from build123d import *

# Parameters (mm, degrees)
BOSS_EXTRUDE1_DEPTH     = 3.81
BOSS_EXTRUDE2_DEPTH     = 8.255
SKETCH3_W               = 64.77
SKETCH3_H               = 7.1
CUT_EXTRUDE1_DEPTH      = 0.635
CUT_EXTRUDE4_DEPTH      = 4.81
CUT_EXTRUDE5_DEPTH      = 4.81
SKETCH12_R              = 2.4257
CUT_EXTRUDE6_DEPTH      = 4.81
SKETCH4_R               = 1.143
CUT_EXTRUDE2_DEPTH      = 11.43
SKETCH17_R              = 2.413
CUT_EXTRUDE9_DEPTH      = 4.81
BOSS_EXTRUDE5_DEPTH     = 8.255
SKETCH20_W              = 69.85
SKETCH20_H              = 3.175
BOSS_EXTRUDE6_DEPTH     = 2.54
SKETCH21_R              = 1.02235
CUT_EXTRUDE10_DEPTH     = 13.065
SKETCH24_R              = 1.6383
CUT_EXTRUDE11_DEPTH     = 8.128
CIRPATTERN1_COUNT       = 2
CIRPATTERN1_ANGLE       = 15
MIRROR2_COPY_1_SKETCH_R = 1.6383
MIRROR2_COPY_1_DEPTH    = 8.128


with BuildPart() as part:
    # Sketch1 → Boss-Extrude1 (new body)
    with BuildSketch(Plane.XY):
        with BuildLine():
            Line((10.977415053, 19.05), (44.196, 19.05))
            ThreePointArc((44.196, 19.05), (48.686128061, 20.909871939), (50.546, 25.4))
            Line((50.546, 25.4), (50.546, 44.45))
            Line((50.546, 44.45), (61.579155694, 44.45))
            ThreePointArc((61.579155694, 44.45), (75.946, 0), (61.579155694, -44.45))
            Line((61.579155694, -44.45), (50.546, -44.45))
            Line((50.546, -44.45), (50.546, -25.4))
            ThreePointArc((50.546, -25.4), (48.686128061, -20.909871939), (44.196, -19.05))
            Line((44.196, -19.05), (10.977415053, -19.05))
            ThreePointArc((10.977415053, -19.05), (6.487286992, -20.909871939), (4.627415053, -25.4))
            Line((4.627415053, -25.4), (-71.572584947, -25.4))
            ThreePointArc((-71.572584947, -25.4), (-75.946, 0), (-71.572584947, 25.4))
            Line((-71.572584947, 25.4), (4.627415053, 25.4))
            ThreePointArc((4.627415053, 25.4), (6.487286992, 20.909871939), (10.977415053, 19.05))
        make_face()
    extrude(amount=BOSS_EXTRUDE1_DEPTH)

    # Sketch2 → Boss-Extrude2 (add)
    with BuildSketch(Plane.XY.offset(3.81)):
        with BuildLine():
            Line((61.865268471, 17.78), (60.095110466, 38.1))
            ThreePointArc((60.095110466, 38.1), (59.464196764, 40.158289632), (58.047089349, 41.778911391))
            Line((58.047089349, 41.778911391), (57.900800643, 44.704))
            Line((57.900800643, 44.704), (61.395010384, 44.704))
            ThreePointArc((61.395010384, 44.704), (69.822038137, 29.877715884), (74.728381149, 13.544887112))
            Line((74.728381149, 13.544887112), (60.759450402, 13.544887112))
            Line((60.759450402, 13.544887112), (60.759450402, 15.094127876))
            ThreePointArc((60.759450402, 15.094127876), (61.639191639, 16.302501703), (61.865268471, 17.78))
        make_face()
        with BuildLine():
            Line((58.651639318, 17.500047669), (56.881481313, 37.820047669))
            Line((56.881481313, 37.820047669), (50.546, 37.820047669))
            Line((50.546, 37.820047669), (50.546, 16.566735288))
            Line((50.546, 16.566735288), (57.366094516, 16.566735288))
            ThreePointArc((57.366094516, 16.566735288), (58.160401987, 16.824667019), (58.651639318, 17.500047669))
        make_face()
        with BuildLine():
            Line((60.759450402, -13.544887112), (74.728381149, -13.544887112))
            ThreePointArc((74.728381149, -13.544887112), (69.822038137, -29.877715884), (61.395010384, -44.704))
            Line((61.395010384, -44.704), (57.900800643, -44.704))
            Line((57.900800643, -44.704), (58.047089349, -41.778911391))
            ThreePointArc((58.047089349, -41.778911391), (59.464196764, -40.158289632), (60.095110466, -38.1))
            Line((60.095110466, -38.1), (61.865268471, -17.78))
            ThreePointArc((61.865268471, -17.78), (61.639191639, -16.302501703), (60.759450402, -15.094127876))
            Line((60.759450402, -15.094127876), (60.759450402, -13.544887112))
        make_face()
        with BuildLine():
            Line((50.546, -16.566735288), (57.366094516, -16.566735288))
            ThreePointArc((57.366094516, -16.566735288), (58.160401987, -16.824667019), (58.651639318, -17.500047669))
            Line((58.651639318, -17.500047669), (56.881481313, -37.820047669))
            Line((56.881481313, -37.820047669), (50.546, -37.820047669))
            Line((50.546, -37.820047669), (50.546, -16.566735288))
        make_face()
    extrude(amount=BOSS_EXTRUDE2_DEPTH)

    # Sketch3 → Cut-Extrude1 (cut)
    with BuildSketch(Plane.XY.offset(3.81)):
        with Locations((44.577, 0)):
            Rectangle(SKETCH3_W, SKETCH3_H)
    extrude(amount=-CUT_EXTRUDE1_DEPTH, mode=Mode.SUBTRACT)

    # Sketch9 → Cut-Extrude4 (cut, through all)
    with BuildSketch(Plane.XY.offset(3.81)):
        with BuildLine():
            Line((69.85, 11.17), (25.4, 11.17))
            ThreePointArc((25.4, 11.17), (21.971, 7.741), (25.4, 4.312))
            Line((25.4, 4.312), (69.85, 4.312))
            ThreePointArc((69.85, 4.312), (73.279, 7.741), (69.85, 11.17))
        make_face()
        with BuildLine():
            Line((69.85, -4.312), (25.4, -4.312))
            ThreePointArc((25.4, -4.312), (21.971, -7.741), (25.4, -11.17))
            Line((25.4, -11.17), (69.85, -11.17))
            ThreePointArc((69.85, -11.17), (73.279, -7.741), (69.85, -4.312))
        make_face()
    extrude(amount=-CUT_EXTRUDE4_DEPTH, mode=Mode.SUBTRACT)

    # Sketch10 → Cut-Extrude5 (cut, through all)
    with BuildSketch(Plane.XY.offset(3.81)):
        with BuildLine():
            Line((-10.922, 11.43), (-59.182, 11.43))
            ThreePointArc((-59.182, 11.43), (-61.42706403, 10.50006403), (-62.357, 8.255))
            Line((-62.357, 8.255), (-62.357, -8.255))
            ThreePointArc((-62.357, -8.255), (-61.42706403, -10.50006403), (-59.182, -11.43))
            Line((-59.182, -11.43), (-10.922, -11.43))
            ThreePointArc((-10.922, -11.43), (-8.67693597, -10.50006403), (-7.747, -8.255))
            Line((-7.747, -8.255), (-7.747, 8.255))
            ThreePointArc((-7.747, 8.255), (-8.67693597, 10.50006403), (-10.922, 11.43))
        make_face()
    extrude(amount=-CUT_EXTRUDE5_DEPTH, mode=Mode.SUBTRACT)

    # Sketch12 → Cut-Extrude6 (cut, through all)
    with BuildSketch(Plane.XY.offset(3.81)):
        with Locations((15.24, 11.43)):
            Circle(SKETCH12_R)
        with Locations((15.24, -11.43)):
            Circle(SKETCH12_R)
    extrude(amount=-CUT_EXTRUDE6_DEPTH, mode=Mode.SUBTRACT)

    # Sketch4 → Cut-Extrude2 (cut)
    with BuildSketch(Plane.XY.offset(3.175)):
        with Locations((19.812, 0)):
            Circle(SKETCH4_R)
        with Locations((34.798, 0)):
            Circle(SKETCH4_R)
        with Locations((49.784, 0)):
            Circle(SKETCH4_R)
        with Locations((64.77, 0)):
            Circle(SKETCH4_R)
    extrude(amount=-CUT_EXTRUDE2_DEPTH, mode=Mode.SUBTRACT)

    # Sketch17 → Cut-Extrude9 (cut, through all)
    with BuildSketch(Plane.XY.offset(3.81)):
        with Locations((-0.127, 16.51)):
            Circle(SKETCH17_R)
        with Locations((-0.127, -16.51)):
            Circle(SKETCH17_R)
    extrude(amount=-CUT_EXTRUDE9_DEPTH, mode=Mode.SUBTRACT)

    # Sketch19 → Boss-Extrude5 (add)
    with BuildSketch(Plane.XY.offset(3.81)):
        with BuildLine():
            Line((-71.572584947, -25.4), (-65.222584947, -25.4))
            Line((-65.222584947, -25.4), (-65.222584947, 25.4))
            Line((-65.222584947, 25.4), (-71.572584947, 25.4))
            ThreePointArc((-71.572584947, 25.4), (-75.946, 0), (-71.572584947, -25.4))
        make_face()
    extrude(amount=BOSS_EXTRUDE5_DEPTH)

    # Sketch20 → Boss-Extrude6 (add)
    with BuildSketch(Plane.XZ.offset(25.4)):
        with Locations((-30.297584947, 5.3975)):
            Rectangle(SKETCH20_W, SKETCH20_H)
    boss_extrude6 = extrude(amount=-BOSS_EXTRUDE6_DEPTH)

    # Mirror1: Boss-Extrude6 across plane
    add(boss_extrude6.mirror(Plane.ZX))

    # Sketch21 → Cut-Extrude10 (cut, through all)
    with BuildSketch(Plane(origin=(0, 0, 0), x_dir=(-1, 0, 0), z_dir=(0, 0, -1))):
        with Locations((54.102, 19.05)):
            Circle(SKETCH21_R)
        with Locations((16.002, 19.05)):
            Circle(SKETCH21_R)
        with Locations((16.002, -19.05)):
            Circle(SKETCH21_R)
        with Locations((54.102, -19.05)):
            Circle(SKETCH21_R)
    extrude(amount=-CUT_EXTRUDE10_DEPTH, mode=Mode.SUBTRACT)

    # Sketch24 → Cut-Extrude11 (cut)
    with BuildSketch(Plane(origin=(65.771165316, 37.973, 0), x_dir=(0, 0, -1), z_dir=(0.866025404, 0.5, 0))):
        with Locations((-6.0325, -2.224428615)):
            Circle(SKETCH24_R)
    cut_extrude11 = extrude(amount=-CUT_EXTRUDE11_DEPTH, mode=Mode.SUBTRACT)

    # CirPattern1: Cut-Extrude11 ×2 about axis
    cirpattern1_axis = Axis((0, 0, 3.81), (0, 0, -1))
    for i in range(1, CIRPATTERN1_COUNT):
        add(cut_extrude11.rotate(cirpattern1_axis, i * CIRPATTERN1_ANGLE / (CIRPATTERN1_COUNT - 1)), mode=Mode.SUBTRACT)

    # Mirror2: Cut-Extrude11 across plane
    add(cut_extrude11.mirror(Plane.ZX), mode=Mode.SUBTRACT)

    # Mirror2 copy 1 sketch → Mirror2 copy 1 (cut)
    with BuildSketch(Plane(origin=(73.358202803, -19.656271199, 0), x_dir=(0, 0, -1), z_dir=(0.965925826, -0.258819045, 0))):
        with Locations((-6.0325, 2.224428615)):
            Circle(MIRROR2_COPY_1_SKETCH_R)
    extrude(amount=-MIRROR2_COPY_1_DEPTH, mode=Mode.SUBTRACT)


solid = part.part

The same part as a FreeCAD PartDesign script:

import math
import FreeCAD as App
import Part
import Sketcher
Q = App.Units.Quantity


def add_polygon(sketch, points):
    """Adds a closed chain of lines whose ends are joined by coincident constraints."""
    first, n = sketch.GeometryCount, len(points)
    for a, b in zip(points, points[1:] + points[:1]):
        sketch.addGeometry(Part.LineSegment(App.Vector(*a, 0), App.Vector(*b, 0)), False)
    for i in range(n):
        sketch.addConstraint(Sketcher.Constraint("Coincident", first + i, 2, first + (i + 1) % n, 1))

doc = App.newDocument("Part")
body = doc.addObject("PartDesign::Body", "Body")

sketch1 = body.newObject("Sketcher::SketchObject", "Sketch")
sketch1.AttachmentSupport = (doc.getObject("XY_Plane"), [""])
sketch1.MapMode = "FlatFace"
sketch1.addGeometry(Part.LineSegment(App.Vector(44, 19, 0), App.Vector(11, 19, 0)), False)
sketch1.addGeometry(Part.ArcOfCircle(Part.Circle(App.Vector(11, 25, 0), App.Vector(0, 0, 1), 6), math.radians(180), math.radians(270)), False)
sketch1.addGeometry(Part.LineSegment(App.Vector(5, 25, 0), App.Vector(-72, 25, 0)), False)
sketch1.addGeometry(Part.ArcOfCircle(Part.Circle(App.Vector(0, 0, 0), App.Vector(0, 0, 1), 76), math.radians(160), math.radians(200)), False)
sketch1.addGeometry(Part.LineSegment(App.Vector(-72, -25, 0), App.Vector(5, -25, 0)), False)
sketch1.addGeometry(Part.ArcOfCircle(Part.Circle(App.Vector(11, -25, 0), App.Vector(0, 0, 1), 6), math.radians(90), math.radians(180)), False)
sketch1.addGeometry(Part.LineSegment(App.Vector(11, -19, 0), App.Vector(44, -19, 0)), False)
sketch1.addGeometry(Part.ArcOfCircle(Part.Circle(App.Vector(44, -25, 0), App.Vector(0, 0, 1), 6), math.radians(0), math.radians(90)), False)
sketch1.addGeometry(Part.LineSegment(App.Vector(51, -25, 0), App.Vector(51, -44, 0)), False)
sketch1.addGeometry(Part.LineSegment(App.Vector(51, -44, 0), App.Vector(62, -44, 0)), False)
sketch1.addGeometry(Part.ArcOfCircle(Part.Circle(App.Vector(0, 0, 0), App.Vector(0, 0, 1), 76), math.radians(-36), math.radians(36)), False)
sketch1.addGeometry(Part.LineSegment(App.Vector(62, 44, 0), App.Vector(51, 44, 0)), False)
sketch1.addGeometry(Part.LineSegment(App.Vector(51, 44, 0), App.Vector(51, 25, 0)), False)
sketch1.addGeometry(Part.ArcOfCircle(Part.Circle(App.Vector(44, 25, 0), App.Vector(0, 0, 1), 6), math.radians(-90), math.radians(0)), False)
sketch1.addConstraint(Sketcher.Constraint("Tangent", 0, 2, 1, 2))
sketch1.addConstraint(Sketcher.Constraint("Coincident", 1, 1, 2, 1))
sketch1.addConstraint(Sketcher.Constraint("Coincident", 2, 2, 3, 1))
sketch1.addConstraint(Sketcher.Constraint("Coincident", 3, 2, 4, 1))
sketch1.addConstraint(Sketcher.Constraint("Coincident", 4, 2, 5, 2))
sketch1.addConstraint(Sketcher.Constraint("Tangent", 5, 1, 6, 1))
sketch1.addConstraint(Sketcher.Constraint("Tangent", 6, 2, 7, 2))
sketch1.addConstraint(Sketcher.Constraint("Tangent", 7, 1, 8, 1))
sketch1.addConstraint(Sketcher.Constraint("Coincident", 8, 2, 9, 1))
sketch1.addConstraint(Sketcher.Constraint("Coincident", 9, 2, 10, 1))
sketch1.addConstraint(Sketcher.Constraint("Coincident", 10, 2, 11, 1))
sketch1.addConstraint(Sketcher.Constraint("Coincident", 11, 2, 12, 1))
sketch1.addConstraint(Sketcher.Constraint("Tangent", 12, 2, 13, 2))
sketch1.addConstraint(Sketcher.Constraint("Tangent", 13, 1, 0, 1))
sketch1.addConstraint(Sketcher.Constraint("Horizontal", 0))
sketch1.addConstraint(Sketcher.Constraint("Horizontal", 2))
sketch1.addConstraint(Sketcher.Constraint("Horizontal", 4))
sketch1.addConstraint(Sketcher.Constraint("Horizontal", 6))
sketch1.addConstraint(Sketcher.Constraint("Vertical", 8))
sketch1.addConstraint(Sketcher.Constraint("Horizontal", 9))
sketch1.addConstraint(Sketcher.Constraint("Horizontal", 11))
sketch1.addConstraint(Sketcher.Constraint("Vertical", 12))
sketch1.addConstraint(Sketcher.Constraint("Coincident", 3, 3, -1, 1))
sketch1.addConstraint(Sketcher.Constraint("Coincident", 10, 3, -1, 1))
sketch1.addConstraint(Sketcher.Constraint("Equal", 1, 5))
sketch1.addConstraint(Sketcher.Constraint("Equal", 5, 7))
sketch1.addConstraint(Sketcher.Constraint("Equal", 3, 10))
sketch1.addConstraint(Sketcher.Constraint("Equal", 7, 13))
sketch1.addConstraint(Sketcher.Constraint("Symmetric", 1, 3, 5, 3, -1))
sketch1.addConstraint(Sketcher.Constraint("Symmetric", 8, 2, 11, 2, -1))
sketch1.addConstraint(Sketcher.Constraint("Horizontal", 13, 3, 1, 1))
sketch1.addConstraint(Sketcher.Constraint("Horizontal", 7, 3, 3, 2))
sketch1.addConstraint(Sketcher.Constraint("DistanceX", 2, 2, 2, 1, Q("3 in")))
sketch1.addConstraint(Sketcher.Constraint("Radius", 1, Q("0.25 in")))
sketch1.addConstraint(Sketcher.Constraint("Radius", 3, Q("2.99 in")))
sketch1.addConstraint(Sketcher.Constraint("DistanceY", -1, 1, 1, 3, Q("1 in")))
sketch1.addConstraint(Sketcher.Constraint("DistanceY", 8, 2, 6, 2, Q("1 in")))
sketch1.addConstraint(Sketcher.Constraint("DistanceX", -1, 1, 7, 3, Q("1.74 in")))
pad1 = body.newObject("PartDesign::Pad", "Pad")
pad1.Profile = sketch1
pad1.Length = Q("0.15 in")

sketch2 = body.newObject("Sketcher::SketchObject", "Sketch001")
sketch2.AttachmentSupport = (doc.getObject("XY_Plane"), [""])
sketch2.MapMode = "FlatFace"
sketch2.AttachmentOffset = App.Placement(App.Vector(0, 0, 0.15 * 25.4), App.Rotation())
sketch2.addGeometry(Part.LineSegment(App.Vector(60.1, 38.1, 0), App.Vector(61.9, 17.8, 0)), False)
sketch2.addGeometry(Part.ArcOfCircle(Part.Circle(App.Vector(58.7, 17.5, 0), App.Vector(0, 0, 1), 3.2), math.radians(-50), math.radians(5)), False)
sketch2.addGeometry(Part.LineSegment(App.Vector(60.8, 15.1, 0), App.Vector(60.8, 13.5, 0)), False)
sketch2.addGeometry(Part.LineSegment(App.Vector(60.8, 13.5, 0), App.Vector(74.7, 13.5, 0)), False)
sketch2.addGeometry(Part.ArcOfCircle(Part.Circle(App.Vector(0, 0, 0), App.Vector(0, 0, 1), 75.9), math.radians(10), math.radians(36)), False)
sketch2.addGeometry(Part.LineSegment(App.Vector(61.4, 44.7, 0), App.Vector(57.9, 44.7, 0)), False)
sketch2.addGeometry(Part.LineSegment(App.Vector(57.9, 44.7, 0), App.Vector(58, 41.8, 0)), False)
sketch2.addGeometry(Part.ArcOfCircle(Part.Circle(App.Vector(55, 37.7, 0), App.Vector(0, 0, 1), 5.2), math.radians(5), math.radians(53)), False)
sketch2.addGeometry(Part.LineSegment(App.Vector(58.7, 17.5, 0), App.Vector(56.9, 37.8, 0)), False)
sketch2.addGeometry(Part.LineSegment(App.Vector(56.9, 37.8, 0), App.Vector(50.5, 37.8, 0)), False)
sketch2.addGeometry(Part.LineSegment(App.Vector(50.5, 37.8, 0), App.Vector(50.5, 16.6, 0)), False)
sketch2.addGeometry(Part.LineSegment(App.Vector(50.5, 16.6, 0), App.Vector(57.4, 16.6, 0)), False)
sketch2.addGeometry(Part.ArcOfCircle(Part.Circle(App.Vector(57.4, 17.9, 0), App.Vector(0, 0, 1), 1.4), math.radians(-90), math.radians(-18)), False)
sketch2.addGeometry(Part.LineSegment(App.Vector(74.7, -13.5, 0), App.Vector(60.8, -13.5, 0)), False)
sketch2.addGeometry(Part.LineSegment(App.Vector(60.8, -13.5, 0), App.Vector(60.8, -15.1, 0)), False)
sketch2.addGeometry(Part.ArcOfCircle(Part.Circle(App.Vector(58.7, -17.5, 0), App.Vector(0, 0, 1), 3.2), math.radians(-5), math.radians(50)), False)
sketch2.addGeometry(Part.LineSegment(App.Vector(61.9, -17.8, 0), App.Vector(60.1, -38.1, 0)), False)
sketch2.addGeometry(Part.ArcOfCircle(Part.Circle(App.Vector(55, -37.7, 0), App.Vector(0, 0, 1), 5.2), math.radians(-53), math.radians(-5)), False)
sketch2.addGeometry(Part.LineSegment(App.Vector(58, -41.8, 0), App.Vector(57.9, -44.7, 0)), False)
sketch2.addGeometry(Part.LineSegment(App.Vector(57.9, -44.7, 0), App.Vector(61.4, -44.7, 0)), False)
sketch2.addGeometry(Part.ArcOfCircle(Part.Circle(App.Vector(0, 0, 0), App.Vector(0, 0, 1), 75.9), math.radians(-36), math.radians(-10)), False)
sketch2.addGeometry(Part.LineSegment(App.Vector(57.4, -16.6, 0), App.Vector(50.5, -16.6, 0)), False)
sketch2.addGeometry(Part.LineSegment(App.Vector(50.5, -16.6, 0), App.Vector(50.5, -37.8, 0)), False)
sketch2.addGeometry(Part.LineSegment(App.Vector(50.5, -37.8, 0), App.Vector(56.9, -37.8, 0)), False)
sketch2.addGeometry(Part.LineSegment(App.Vector(56.9, -37.8, 0), App.Vector(58.7, -17.5, 0)), False)
sketch2.addGeometry(Part.ArcOfCircle(Part.Circle(App.Vector(57.4, -17.9, 0), App.Vector(0, 0, 1), 1.4), math.radians(18), math.radians(90)), False)
sketch2.addConstraint(Sketcher.Constraint("Tangent", 0, 2, 1, 2))
sketch2.addConstraint(Sketcher.Constraint("Coincident", 1, 1, 2, 1))
sketch2.addConstraint(Sketcher.Constraint("Coincident", 2, 2, 3, 1))
sketch2.addConstraint(Sketcher.Constraint("Coincident", 3, 2, 4, 1))
sketch2.addConstraint(Sketcher.Constraint("Coincident", 4, 2, 5, 1))
sketch2.addConstraint(Sketcher.Constraint("Coincident", 5, 2, 6, 1))
sketch2.addConstraint(Sketcher.Constraint("Coincident", 6, 2, 7, 2))
sketch2.addConstraint(Sketcher.Constraint("Tangent", 7, 1, 0, 1))
sketch2.addConstraint(Sketcher.Constraint("Coincident", 8, 2, 9, 1))
sketch2.addConstraint(Sketcher.Constraint("Coincident", 9, 2, 10, 1))
sketch2.addConstraint(Sketcher.Constraint("Coincident", 10, 2, 11, 1))
sketch2.addConstraint(Sketcher.Constraint("Tangent", 11, 2, 12, 1))
sketch2.addConstraint(Sketcher.Constraint("Coincident", 12, 2, 8, 1))
sketch2.addConstraint(Sketcher.Constraint("Coincident", 13, 2, 14, 1))
sketch2.addConstraint(Sketcher.Constraint("Coincident", 14, 2, 15, 2))
sketch2.addConstraint(Sketcher.Constraint("Tangent", 15, 1, 16, 1))
sketch2.addConstraint(Sketcher.Constraint("Tangent", 16, 2, 17, 2))
sketch2.addConstraint(Sketcher.Constraint("Coincident", 17, 1, 18, 1))
sketch2.addConstraint(Sketcher.Constraint("Coincident", 18, 2, 19, 1))
sketch2.addConstraint(Sketcher.Constraint("Coincident", 19, 2, 20, 1))
sketch2.addConstraint(Sketcher.Constraint("Coincident", 20, 2, 13, 1))
sketch2.addConstraint(Sketcher.Constraint("Coincident", 21, 2, 22, 1))
sketch2.addConstraint(Sketcher.Constraint("Coincident", 22, 2, 23, 1))
sketch2.addConstraint(Sketcher.Constraint("Coincident", 23, 2, 24, 1))
sketch2.addConstraint(Sketcher.Constraint("Coincident", 24, 2, 25, 1))
sketch2.addConstraint(Sketcher.Constraint("Tangent", 25, 2, 21, 1))
sketch2.addConstraint(Sketcher.Constraint("Vertical", 2))
sketch2.addConstraint(Sketcher.Constraint("Horizontal", 3))
sketch2.addConstraint(Sketcher.Constraint("Horizontal", 5))
sketch2.addConstraint(Sketcher.Constraint("Horizontal", 9))
sketch2.addConstraint(Sketcher.Constraint("Vertical", 10))
sketch2.addConstraint(Sketcher.Constraint("Horizontal", 11))
sketch2.addConstraint(Sketcher.Constraint("Horizontal", 13))
sketch2.addConstraint(Sketcher.Constraint("Vertical", 14))
sketch2.addConstraint(Sketcher.Constraint("Horizontal", 19))
sketch2.addConstraint(Sketcher.Constraint("Horizontal", 21))
sketch2.addConstraint(Sketcher.Constraint("Vertical", 22))
sketch2.addConstraint(Sketcher.Constraint("Horizontal", 23))
sketch2.addConstraint(Sketcher.Constraint("Coincident", 4, 3, -1, 1))
sketch2.addConstraint(Sketcher.Constraint("Coincident", 20, 3, -1, 1))
sketch2.addConstraint(Sketcher.Constraint("Equal", 1, 15))
sketch2.addConstraint(Sketcher.Constraint("Equal", 7, 17))
sketch2.addConstraint(Sketcher.Constraint("Equal", 4, 20))
sketch2.addConstraint(Sketcher.Constraint("Equal", 12, 25))
sketch2.addConstraint(Sketcher.Constraint("Symmetric", 1, 3, 15, 3, -1))
sketch2.addConstraint(Sketcher.Constraint("Symmetric", 7, 3, 17, 3, -1))
sketch2.addConstraint(Sketcher.Constraint("Symmetric", 12, 3, 25, 3, -1))
sketch2.addConstraint(Sketcher.Constraint("Symmetric", 2, 2, 13, 2, -1))
sketch2.addConstraint(Sketcher.Constraint("Symmetric", 5, 2, 18, 2, -1))
sketch2.addConstraint(Sketcher.Constraint("Symmetric", 9, 2, 22, 2, -1))
sketch2.addConstraint(Sketcher.Constraint("Parallel", 0, 8))
sketch2.addConstraint(Sketcher.Constraint("Parallel", 16, 24))
sketch2.addConstraint(Sketcher.Constraint("Vertical", 6, 2, 17, 1))
sketch2.addConstraint(Sketcher.Constraint("Vertical", 8, 2, 23, 2))
sketch2.addConstraint(Sketcher.Constraint("Equal", 0, 8))
sketch2.addConstraint(Sketcher.Constraint("Radius", 4, Q("2.99 in")))
sketch2.addConstraint(Sketcher.Constraint("DistanceY", -1, 1, 0, 2, Q("0.7 in")))
sketch2.addConstraint(Sketcher.Constraint("DistanceY", -1, 1, 7, 1, Q("1.5 in")))
sketch2.addConstraint(Sketcher.Constraint("DistanceY", -1, 1, 4, 2, Q("1.76 in")))
sketch2.addConstraint(Sketcher.Constraint("DistanceX", -1, 1, 9, 2, Q("1.99 in")))
sketch2.addConstraint(Sketcher.Constraint("Radius", 12, 1.352011))
sketch2.addConstraint(Sketcher.Constraint("Radius", 1, 3.160443))
sketch2.addConstraint(Sketcher.Constraint("Radius", 7, 5.150666))
sketch2.addConstraint(Sketcher.Constraint("DistanceY", 1, 3, 7, 3, Q("0.7931999 in")))
sketch2.addConstraint(Sketcher.Constraint("DistanceX", 3, 1, 3, 2, 13.968931))
sketch2.addConstraint(Sketcher.Constraint("DistanceX", 5, 2, 5, 1, 3.49421))
sketch2.addConstraint(Sketcher.Constraint("DistanceX", 9, 2, 9, 1, 6.335481))
sketch2.addConstraint(Sketcher.Constraint("DistanceY", 2, 2, 2, 1, 1.549241))
sketch2.addConstraint(Sketcher.Constraint("DistanceX", 1, 3, 1, 1, 2.042701))
sketch2.addConstraint(Sketcher.Constraint("DistanceY", 12, 2, 12, 3, 0.418699))
sketch2.addConstraint(Sketcher.Constraint("DistanceX", -1, 1, 6, 2, 58.047089))
sketch2.addConstraint(Sketcher.Constraint("DistanceY", 12, 3, 7, 3, 19.734251))
pad2 = body.newObject("PartDesign::Pad", "Pad001")
pad2.Profile = sketch2
pad2.Length = Q("0.325 in")

sketch3 = body.newObject("Sketcher::SketchObject", "Sketch002")
sketch3.AttachmentSupport = (doc.getObject("XY_Plane"), [""])
sketch3.MapMode = "FlatFace"
sketch3.AttachmentOffset = App.Placement(App.Vector(0, 0, 0.15 * 25.4), App.Rotation())
add_polygon(sketch3, [(12, 4), (12, -4), (77, -4), (77, 4)])
sketch3.addConstraint(Sketcher.Constraint("Vertical", 0))
sketch3.addConstraint(Sketcher.Constraint("Horizontal", 1))
sketch3.addConstraint(Sketcher.Constraint("Vertical", 2))
sketch3.addConstraint(Sketcher.Constraint("Horizontal", 3))
sketch3.addConstraint(Sketcher.Constraint("DistanceX", 1, 1, 1, 2, Q("2.55 in")))
sketch3.addConstraint(Sketcher.Constraint("DistanceX", -1, 1, 0, 2, Q("0.48 in")))
sketch3.addConstraint(Sketcher.Constraint("DistanceY", 0, 2, 0, 1, 7.1))
sketch3.addConstraint(Sketcher.Constraint("DistanceY", 0, 2, -1, 1, 3.55))
pocket1 = body.newObject("PartDesign::Pocket", "Pocket")
pocket1.Profile = sketch3
pocket1.Length = Q("0.025 in")

sketch4 = body.newObject("Sketcher::SketchObject", "Sketch003")
sketch4.AttachmentSupport = (doc.getObject("XY_Plane"), [""])
sketch4.MapMode = "FlatFace"
sketch4.AttachmentOffset = App.Placement(App.Vector(0, 0, 0.15 * 25.4), App.Rotation())
sketch4.addGeometry(Part.LineSegment(App.Vector(69.8, 11.2, 0), App.Vector(25.4, 11.2, 0)), False)
sketch4.addGeometry(Part.ArcOfCircle(Part.Circle(App.Vector(25.4, 7.7, 0), App.Vector(0, 0, 1), 3.4), math.radians(90), math.radians(270)), False)
sketch4.addGeometry(Part.LineSegment(App.Vector(25.4, 4.3, 0), App.Vector(69.8, 4.3, 0)), False)
sketch4.addGeometry(Part.ArcOfCircle(Part.Circle(App.Vector(69.8, 7.7, 0), App.Vector(0, 0, 1), 3.4), math.radians(-90), math.radians(90)), False)
sketch4.addGeometry(Part.LineSegment(App.Vector(69.8, -4.3, 0), App.Vector(25.4, -4.3, 0)), False)
sketch4.addGeometry(Part.ArcOfCircle(Part.Circle(App.Vector(25.4, -7.7, 0), App.Vector(0, 0, 1), 3.4), math.radians(90), math.radians(270)), False)
sketch4.addGeometry(Part.LineSegment(App.Vector(25.4, -11.2, 0), App.Vector(69.8, -11.2, 0)), False)
sketch4.addGeometry(Part.ArcOfCircle(Part.Circle(App.Vector(69.8, -7.7, 0), App.Vector(0, 0, 1), 3.4), math.radians(-90), math.radians(90)), False)
sketch4.addConstraint(Sketcher.Constraint("Tangent", 0, 2, 1, 1))
sketch4.addConstraint(Sketcher.Constraint("Tangent", 1, 2, 2, 1))
sketch4.addConstraint(Sketcher.Constraint("Tangent", 2, 2, 3, 1))
sketch4.addConstraint(Sketcher.Constraint("Tangent", 3, 2, 0, 1))
sketch4.addConstraint(Sketcher.Constraint("Tangent", 4, 2, 5, 1))
sketch4.addConstraint(Sketcher.Constraint("Tangent", 5, 2, 6, 1))
sketch4.addConstraint(Sketcher.Constraint("Tangent", 6, 2, 7, 1))
sketch4.addConstraint(Sketcher.Constraint("Tangent", 7, 2, 4, 1))
sketch4.addConstraint(Sketcher.Constraint("Horizontal", 0))
sketch4.addConstraint(Sketcher.Constraint("Horizontal", 2))
sketch4.addConstraint(Sketcher.Constraint("Horizontal", 4))
sketch4.addConstraint(Sketcher.Constraint("Horizontal", 6))
sketch4.addConstraint(Sketcher.Constraint("Equal", 3, 5))
sketch4.addConstraint(Sketcher.Constraint("Symmetric", 1, 3, 5, 3, -1))
sketch4.addConstraint(Sketcher.Constraint("Vertical", 3, 3, 7, 3))
sketch4.addConstraint(Sketcher.Constraint("DistanceX", -1, 1, 1, 3, Q("1 in")))
sketch4.addConstraint(Sketcher.Constraint("Radius", 1, Q("0.135 in")))
sketch4.addConstraint(Sketcher.Constraint("DistanceX", 0, 2, 0, 1, Q("1.75 in")))
sketch4.addConstraint(Sketcher.Constraint("DistanceY", -1, 1, 1, 3, 7.741))
pocket2 = body.newObject("PartDesign::Pocket", "Pocket001")
pocket2.Profile = sketch4
pocket2.Type = "ThroughAll"

sketch5 = body.newObject("Sketcher::SketchObject", "Sketch004")
sketch5.AttachmentSupport = (doc.getObject("XY_Plane"), [""])
sketch5.MapMode = "FlatFace"
sketch5.AttachmentOffset = App.Placement(App.Vector(0, 0, 0.15 * 25.4), App.Rotation())
sketch5.addGeometry(Part.LineSegment(App.Vector(-10.9, 11.4, 0), App.Vector(-59.2, 11.4, 0)), False)
sketch5.addGeometry(Part.ArcOfCircle(Part.Circle(App.Vector(-59.2, 8.3, 0), App.Vector(0, 0, 1), 3.2), math.radians(90), math.radians(180)), False)
sketch5.addGeometry(Part.LineSegment(App.Vector(-62.4, 8.3, 0), App.Vector(-62.4, -8.3, 0)), False)
sketch5.addGeometry(Part.ArcOfCircle(Part.Circle(App.Vector(-59.2, -8.3, 0), App.Vector(0, 0, 1), 3.2), math.radians(-180), math.radians(-90)), False)
sketch5.addGeometry(Part.LineSegment(App.Vector(-59.2, -11.4, 0), App.Vector(-10.9, -11.4, 0)), False)
sketch5.addGeometry(Part.ArcOfCircle(Part.Circle(App.Vector(-10.9, -8.3, 0), App.Vector(0, 0, 1), 3.2), math.radians(-90), math.radians(0)), False)
sketch5.addGeometry(Part.LineSegment(App.Vector(-7.7, -8.3, 0), App.Vector(-7.7, 8.3, 0)), False)
sketch5.addGeometry(Part.ArcOfCircle(Part.Circle(App.Vector(-10.9, 8.3, 0), App.Vector(0, 0, 1), 3.2), math.radians(0), math.radians(90)), False)
sketch5.addConstraint(Sketcher.Constraint("Tangent", 0, 2, 1, 1))
sketch5.addConstraint(Sketcher.Constraint("Tangent", 1, 2, 2, 1))
sketch5.addConstraint(Sketcher.Constraint("Tangent", 2, 2, 3, 1))
sketch5.addConstraint(Sketcher.Constraint("Tangent", 3, 2, 4, 1))
sketch5.addConstraint(Sketcher.Constraint("Tangent", 4, 2, 5, 1))
sketch5.addConstraint(Sketcher.Constraint("Tangent", 5, 2, 6, 1))
sketch5.addConstraint(Sketcher.Constraint("Tangent", 6, 2, 7, 1))
sketch5.addConstraint(Sketcher.Constraint("Tangent", 7, 2, 0, 1))
sketch5.addConstraint(Sketcher.Constraint("Horizontal", 0))
sketch5.addConstraint(Sketcher.Constraint("Vertical", 2))
sketch5.addConstraint(Sketcher.Constraint("Horizontal", 4))
sketch5.addConstraint(Sketcher.Constraint("Vertical", 6))
sketch5.addConstraint(Sketcher.Constraint("Equal", 1, 3))
sketch5.addConstraint(Sketcher.Constraint("Equal", 3, 5))
sketch5.addConstraint(Sketcher.Constraint("Equal", 5, 7))
sketch5.addConstraint(Sketcher.Constraint("DistanceX", 0, 2, 0, 1, Q("1.9 in")))
sketch5.addConstraint(Sketcher.Constraint("Radius", 1, Q("0.125 in")))
sketch5.addConstraint(Sketcher.Constraint("DistanceY", 2, 2, 2, 1, Q("0.65 in")))
sketch5.addConstraint(Sketcher.Constraint("DistanceX", 1, 3, -1, 1, Q("2.33 in")))
sketch5.addConstraint(Sketcher.Constraint("DistanceY", -1, 1, 0, 2, Q("0.45 in")))
pocket3 = body.newObject("PartDesign::Pocket", "Pocket002")
pocket3.Profile = sketch5
pocket3.Type = "ThroughAll"

sketch6 = body.newObject("Sketcher::SketchObject", "Sketch005")
sketch6.AttachmentSupport = (doc.getObject("XY_Plane"), [""])
sketch6.MapMode = "FlatFace"
sketch6.AttachmentOffset = App.Placement(App.Vector(0, 0, 0.15 * 25.4), App.Rotation())
sketch6.addGeometry(Part.Circle(App.Vector(15.2, 11.4, 0), App.Vector(0, 0, 1), 2.4), False)
sketch6.addGeometry(Part.Circle(App.Vector(15.2, -11.4, 0), App.Vector(0, 0, 1), 2.4), False)
sketch6.addConstraint(Sketcher.Constraint("Equal", 0, 1))
sketch6.addConstraint(Sketcher.Constraint("Symmetric", 0, 3, 1, 3, -1))
sketch6.addConstraint(Sketcher.Constraint("Diameter", 0, Q("0.191 in")))
sketch6.addConstraint(Sketcher.Constraint("DistanceX", -1, 1, 0, 3, Q("0.6 in")))
sketch6.addConstraint(Sketcher.Constraint("DistanceY", 1, 3, 0, 3, Q("0.9 in")))
pocket4 = body.newObject("PartDesign::Pocket", "Pocket003")
pocket4.Profile = sketch6
pocket4.Type = "ThroughAll"

sketch7 = body.newObject("Sketcher::SketchObject", "Sketch006")
sketch7.AttachmentSupport = (doc.getObject("XY_Plane"), [""])
sketch7.MapMode = "FlatFace"
sketch7.AttachmentOffset = App.Placement(App.Vector(0, 0, 0.125 * 25.4), App.Rotation())
sketch7.addGeometry(Part.Circle(App.Vector(19.8, 0, 0), App.Vector(0, 0, 1), 1.1), False)
sketch7.addGeometry(Part.Circle(App.Vector(34.8, 0, 0), App.Vector(0, 0, 1), 1.1), False)
sketch7.addGeometry(Part.Circle(App.Vector(49.8, 0, 0), App.Vector(0, 0, 1), 1.1), False)
sketch7.addGeometry(Part.Circle(App.Vector(64.8, 0, 0), App.Vector(0, 0, 1), 1.1), False)
sketch7.addConstraint(Sketcher.Constraint("Equal", 0, 1))
sketch7.addConstraint(Sketcher.Constraint("Equal", 1, 2))
sketch7.addConstraint(Sketcher.Constraint("Equal", 2, 3))
sketch7.addConstraint(Sketcher.Constraint("PointOnObject", 0, 3, -1))
sketch7.addConstraint(Sketcher.Constraint("PointOnObject", 1, 3, -1))
sketch7.addConstraint(Sketcher.Constraint("PointOnObject", 2, 3, -1))
sketch7.addConstraint(Sketcher.Constraint("PointOnObject", 3, 3, -1))
sketch7.addConstraint(Sketcher.Constraint("Diameter", 0, Q("0.09 in")))
sketch7.addConstraint(Sketcher.Constraint("DistanceX", -1, 1, 0, 3, Q("0.78 in")))
sketch7.addConstraint(Sketcher.Constraint("DistanceX", -1, 1, 1, 3, Q("1.37 in")))
sketch7.addConstraint(Sketcher.Constraint("DistanceX", -1, 1, 2, 3, Q("1.96 in")))
sketch7.addConstraint(Sketcher.Constraint("DistanceX", -1, 1, 3, 3, Q("2.55 in")))
pocket5 = body.newObject("PartDesign::Pocket", "Pocket004")
pocket5.Profile = sketch7
pocket5.Length = Q("0.45 in")

sketch8 = body.newObject("Sketcher::SketchObject", "Sketch007")
sketch8.AttachmentSupport = (doc.getObject("XY_Plane"), [""])
sketch8.MapMode = "FlatFace"
sketch8.AttachmentOffset = App.Placement(App.Vector(0, 0, 0.15 * 25.4), App.Rotation())
sketch8.addGeometry(Part.Circle(App.Vector(-0.1, 16.5, 0), App.Vector(0, 0, 1), 2.4), False)
sketch8.addGeometry(Part.Circle(App.Vector(-0.1, -16.5, 0), App.Vector(0, 0, 1), 2.4), False)
sketch8.addConstraint(Sketcher.Constraint("Equal", 0, 1))
sketch8.addConstraint(Sketcher.Constraint("Symmetric", 0, 3, 1, 3, -1))
sketch8.addConstraint(Sketcher.Constraint("Diameter", 0, Q("0.19 in")))
sketch8.addConstraint(Sketcher.Constraint("DistanceY", 1, 3, 0, 3, Q("1.3 in")))
sketch8.addConstraint(Sketcher.Constraint("DistanceX", 0, 3, -1, 1, Q("0.005 in")))
pocket6 = body.newObject("PartDesign::Pocket", "Pocket005")
pocket6.Profile = sketch8
pocket6.Type = "ThroughAll"

sketch9 = body.newObject("Sketcher::SketchObject", "Sketch008")
sketch9.AttachmentSupport = (doc.getObject("XY_Plane"), [""])
sketch9.MapMode = "FlatFace"
sketch9.AttachmentOffset = App.Placement(App.Vector(0, 0, 0.15 * 25.4), App.Rotation())
sketch9.addGeometry(Part.LineSegment(App.Vector(-72, -25, 0), App.Vector(-65, -25, 0)), False)
sketch9.addGeometry(Part.LineSegment(App.Vector(-65, -25, 0), App.Vector(-65, 25, 0)), False)
sketch9.addGeometry(Part.LineSegment(App.Vector(-65, 25, 0), App.Vector(-72, 25, 0)), False)
sketch9.addGeometry(Part.ArcOfCircle(Part.Circle(App.Vector(0, 0, 0), App.Vector(0, 0, 1), 76), math.radians(160), math.radians(200)), False)
sketch9.addConstraint(Sketcher.Constraint("Coincident", 0, 2, 1, 1))
sketch9.addConstraint(Sketcher.Constraint("Coincident", 1, 2, 2, 1))
sketch9.addConstraint(Sketcher.Constraint("Coincident", 2, 2, 3, 1))
sketch9.addConstraint(Sketcher.Constraint("Coincident", 3, 2, 0, 1))
sketch9.addConstraint(Sketcher.Constraint("Horizontal", 0))
sketch9.addConstraint(Sketcher.Constraint("Vertical", 1))
sketch9.addConstraint(Sketcher.Constraint("Horizontal", 2))
sketch9.addConstraint(Sketcher.Constraint("Coincident", 3, 3, -1, 1))
sketch9.addConstraint(Sketcher.Constraint("Vertical", 2, 2, 3, 2))
sketch9.addConstraint(Sketcher.Constraint("DistanceY", 1, 1, 1, 2, Q("2 in")))
sketch9.addConstraint(Sketcher.Constraint("Radius", 3, Q("2.99 in")))
sketch9.addConstraint(Sketcher.Constraint("DistanceX", 0, 1, 0, 2, Q("0.25 in")))
pad3 = body.newObject("PartDesign::Pad", "Pad002")
pad3.Profile = sketch9
pad3.Length = Q("0.325 in")

sketch10 = body.newObject("Sketcher::SketchObject", "Sketch009")
sketch10.AttachmentSupport = (doc.getObject("XZ_Plane"), [""])
sketch10.MapMode = "FlatFace"
sketch10.AttachmentOffset = App.Placement(App.Vector(0, 0, 1 * 25.4), App.Rotation())
add_polygon(sketch10, [(-65.2, 7), (-65.2, 3.8), (4.6, 3.8), (4.6, 7)])
sketch10.addConstraint(Sketcher.Constraint("Vertical", 0))
sketch10.addConstraint(Sketcher.Constraint("Horizontal", 1))
sketch10.addConstraint(Sketcher.Constraint("Vertical", 2))
sketch10.addConstraint(Sketcher.Constraint("Horizontal", 3))
sketch10.addConstraint(Sketcher.Constraint("DistanceX", 1, 1, 1, 2, Q("2.75 in")))
sketch10.addConstraint(Sketcher.Constraint("DistanceY", 0, 2, 0, 1, Q("0.125 in")))
sketch10.addConstraint(Sketcher.Constraint("DistanceY", -1, 1, 0, 2, Q("0.15 in")))
sketch10.addConstraint(Sketcher.Constraint("DistanceX", 0, 2, -1, 1, 65.222585))
pad4 = body.newObject("PartDesign::Pad", "Pad003")
pad4.Profile = sketch10
pad4.Length = Q("0.1 in")
pad4.Reversed = True
doc.recompute()

mirrored = body.newObject("PartDesign::Mirrored", "Mirrored")
mirrored.Originals = [pad4]
mirrored.MirrorPlane = (doc.getObject("XZ_Plane"), [""])
body.Tip = mirrored

sketch11 = body.newObject("Sketcher::SketchObject", "Sketch010")
sketch11.AttachmentSupport = (doc.getObject("XY_Plane"), [""])
sketch11.MapMode = "FlatFace"
sketch11.addGeometry(Part.Circle(App.Vector(-54.1, 19.1, 0), App.Vector(0, 0, 1), 1), False)
sketch11.addGeometry(Part.Circle(App.Vector(-16, 19.1, 0), App.Vector(0, 0, 1), 1), False)
sketch11.addGeometry(Part.Circle(App.Vector(-16, -19.1, 0), App.Vector(0, 0, 1), 1), False)
sketch11.addGeometry(Part.Circle(App.Vector(-54.1, -19.1, 0), App.Vector(0, 0, 1), 1), False)
sketch11.addConstraint(Sketcher.Constraint("Equal", 0, 1))
sketch11.addConstraint(Sketcher.Constraint("Equal", 1, 2))
sketch11.addConstraint(Sketcher.Constraint("Equal", 2, 3))
sketch11.addConstraint(Sketcher.Constraint("Symmetric", 1, 3, 2, 3, -1))
sketch11.addConstraint(Sketcher.Constraint("Symmetric", 0, 3, 3, 3, -1))
sketch11.addConstraint(Sketcher.Constraint("Horizontal", 0, 3, 1, 3))
sketch11.addConstraint(Sketcher.Constraint("Diameter", 0, Q("0.0805 in")))
sketch11.addConstraint(Sketcher.Constraint("DistanceX", 0, 3, 1, 3, Q("1.5 in")))
sketch11.addConstraint(Sketcher.Constraint("DistanceY", 2, 3, 1, 3, Q("1.5 in")))
sketch11.addConstraint(Sketcher.Constraint("DistanceX", 0, 3, -1, 1, Q("2.13 in")))
pocket7 = body.newObject("PartDesign::Pocket", "Pocket006")
pocket7.Profile = sketch11
pocket7.Type = "ThroughAll"
pocket7.Reversed = True

sketch12 = body.newObject("Sketcher::SketchObject", "Sketch011")
sketch12.Placement = App.Placement(App.Vector(65.771165, 37.973, 0), App.Rotation(App.Vector(0, 0, -1), App.Vector(-0.5, 0.866025404, 0), App.Vector(0.866025404, 0.5, 0), "ZXY"))
sketch12.addGeometry(Part.Circle(App.Vector(-6, -2.2, 0), App.Vector(0, 0, 1), 1.6), False)
sketch12.addConstraint(Sketcher.Constraint("Diameter", 0, Q("0.129 in")))
sketch12.addConstraint(Sketcher.Constraint("DistanceX", 0, 3, -1, 1, Q("0.2375 in")))
sketch12.addConstraint(Sketcher.Constraint("DistanceY", 0, 3, -1, 1, 2.224429))
pocket8 = body.newObject("PartDesign::Pocket", "Pocket007")
pocket8.Profile = sketch12
pocket8.Length = Q("0.32 in")
doc.recompute()

polarpattern = body.newObject("PartDesign::PolarPattern", "PolarPattern")
polarpattern.Originals = [pocket8]
polarpattern.Axis = (doc.getObject("Z_Axis"), [""])
polarpattern.Angle = 15
polarpattern.Occurrences = 2
polarpattern.Reversed = True
body.Tip = polarpattern
doc.recompute()

mirrored2 = body.newObject("PartDesign::Mirrored", "Mirrored001")
mirrored2.Originals = [pocket8]
mirrored2.MirrorPlane = (doc.getObject("XZ_Plane"), [""])
body.Tip = mirrored2

sketch13 = body.newObject("Sketcher::SketchObject", "Sketch012")
sketch13.Placement = App.Placement(App.Vector(73.358203, -19.656271, 0), App.Rotation(App.Vector(0, 0, -1), App.Vector(0.258819045, 0.965925826, 0), App.Vector(0.965925826, -0.258819045, 0), "ZXY"))
sketch13.addGeometry(Part.Circle(App.Vector(-6, 2.2, 0), App.Vector(0, 0, 1), 1.6), False)
sketch13.addConstraint(Sketcher.Constraint("Diameter", 0, Q("0.129 in")))
sketch13.addConstraint(Sketcher.Constraint("DistanceX", 0, 3, -1, 1, Q("0.2375 in")))
sketch13.addConstraint(Sketcher.Constraint("DistanceY", -1, 1, 0, 3, 2.224429))
pocket9 = body.newObject("PartDesign::Pocket", "Pocket008")
pocket9.Profile = sketch13
pocket9.Length = Q("0.32 in")

doc.recompute()
